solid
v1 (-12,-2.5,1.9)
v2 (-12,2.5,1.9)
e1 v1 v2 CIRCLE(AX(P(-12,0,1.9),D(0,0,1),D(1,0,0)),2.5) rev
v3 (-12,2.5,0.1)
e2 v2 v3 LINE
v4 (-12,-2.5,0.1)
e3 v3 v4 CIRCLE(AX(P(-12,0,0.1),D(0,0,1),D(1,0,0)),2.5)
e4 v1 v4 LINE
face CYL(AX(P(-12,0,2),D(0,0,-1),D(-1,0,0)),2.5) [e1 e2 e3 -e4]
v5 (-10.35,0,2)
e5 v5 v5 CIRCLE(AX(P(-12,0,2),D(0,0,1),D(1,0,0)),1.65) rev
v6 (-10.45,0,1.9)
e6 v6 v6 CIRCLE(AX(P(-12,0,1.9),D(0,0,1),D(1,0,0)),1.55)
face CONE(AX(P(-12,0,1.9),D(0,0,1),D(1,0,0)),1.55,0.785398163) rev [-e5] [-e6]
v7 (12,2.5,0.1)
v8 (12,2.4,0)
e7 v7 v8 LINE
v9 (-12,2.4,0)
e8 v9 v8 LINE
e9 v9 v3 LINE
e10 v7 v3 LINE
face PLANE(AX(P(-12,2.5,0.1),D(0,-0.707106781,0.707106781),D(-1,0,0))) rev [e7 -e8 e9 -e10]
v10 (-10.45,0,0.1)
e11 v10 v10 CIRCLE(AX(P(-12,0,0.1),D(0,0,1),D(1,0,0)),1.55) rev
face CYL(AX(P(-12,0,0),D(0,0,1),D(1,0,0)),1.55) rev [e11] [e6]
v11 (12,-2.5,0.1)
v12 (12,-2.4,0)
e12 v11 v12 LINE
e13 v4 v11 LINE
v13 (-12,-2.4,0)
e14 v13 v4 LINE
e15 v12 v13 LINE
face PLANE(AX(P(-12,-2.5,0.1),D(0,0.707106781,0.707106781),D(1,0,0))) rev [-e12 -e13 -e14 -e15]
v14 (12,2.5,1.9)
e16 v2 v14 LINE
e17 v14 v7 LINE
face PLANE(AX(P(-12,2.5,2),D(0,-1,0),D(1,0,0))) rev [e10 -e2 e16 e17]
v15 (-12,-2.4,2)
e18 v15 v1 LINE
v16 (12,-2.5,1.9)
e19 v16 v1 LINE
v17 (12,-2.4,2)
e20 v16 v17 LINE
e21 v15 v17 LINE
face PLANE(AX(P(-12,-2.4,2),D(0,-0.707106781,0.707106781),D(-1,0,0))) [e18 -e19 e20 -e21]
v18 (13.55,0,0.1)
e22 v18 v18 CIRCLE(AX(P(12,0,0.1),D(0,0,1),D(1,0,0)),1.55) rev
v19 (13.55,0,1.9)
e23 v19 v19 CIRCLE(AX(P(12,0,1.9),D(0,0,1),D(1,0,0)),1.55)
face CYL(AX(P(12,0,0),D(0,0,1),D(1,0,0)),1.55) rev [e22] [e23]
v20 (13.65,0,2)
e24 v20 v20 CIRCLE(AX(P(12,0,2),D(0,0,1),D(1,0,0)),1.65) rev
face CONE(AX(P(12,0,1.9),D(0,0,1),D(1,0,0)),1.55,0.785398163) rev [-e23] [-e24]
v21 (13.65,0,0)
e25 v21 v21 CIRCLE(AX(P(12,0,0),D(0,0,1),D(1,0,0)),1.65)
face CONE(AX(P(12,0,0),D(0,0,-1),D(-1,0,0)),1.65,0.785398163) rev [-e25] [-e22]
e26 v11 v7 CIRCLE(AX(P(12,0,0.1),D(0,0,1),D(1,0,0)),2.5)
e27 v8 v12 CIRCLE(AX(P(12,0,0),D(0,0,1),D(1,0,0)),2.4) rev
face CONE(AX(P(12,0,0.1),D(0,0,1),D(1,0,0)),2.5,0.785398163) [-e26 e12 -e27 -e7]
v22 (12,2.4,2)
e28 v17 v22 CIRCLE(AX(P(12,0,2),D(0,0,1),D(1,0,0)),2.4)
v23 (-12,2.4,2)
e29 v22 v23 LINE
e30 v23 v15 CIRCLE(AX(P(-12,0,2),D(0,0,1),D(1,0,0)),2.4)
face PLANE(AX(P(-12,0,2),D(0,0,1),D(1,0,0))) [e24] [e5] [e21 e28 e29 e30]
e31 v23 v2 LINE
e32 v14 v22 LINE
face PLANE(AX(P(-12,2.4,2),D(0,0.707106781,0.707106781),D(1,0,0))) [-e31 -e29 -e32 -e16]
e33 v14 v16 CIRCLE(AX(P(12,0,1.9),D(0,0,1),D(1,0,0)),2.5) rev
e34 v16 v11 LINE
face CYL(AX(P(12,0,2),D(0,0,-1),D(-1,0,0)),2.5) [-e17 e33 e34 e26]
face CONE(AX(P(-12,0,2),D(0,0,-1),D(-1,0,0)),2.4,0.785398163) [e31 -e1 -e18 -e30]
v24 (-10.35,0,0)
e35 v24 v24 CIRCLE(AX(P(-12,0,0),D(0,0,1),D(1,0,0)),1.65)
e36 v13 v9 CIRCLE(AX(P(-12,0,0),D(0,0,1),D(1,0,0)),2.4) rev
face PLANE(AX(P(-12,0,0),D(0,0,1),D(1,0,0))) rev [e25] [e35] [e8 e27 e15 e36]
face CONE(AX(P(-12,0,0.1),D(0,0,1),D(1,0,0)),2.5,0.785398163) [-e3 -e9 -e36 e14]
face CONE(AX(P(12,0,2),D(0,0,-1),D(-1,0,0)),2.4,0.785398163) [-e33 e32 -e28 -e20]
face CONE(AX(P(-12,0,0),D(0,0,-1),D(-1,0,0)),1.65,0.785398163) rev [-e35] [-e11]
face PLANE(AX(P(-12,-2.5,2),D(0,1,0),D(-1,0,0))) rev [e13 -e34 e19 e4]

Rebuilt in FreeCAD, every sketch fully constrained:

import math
import FreeCAD as App
import Part
import Sketcher


def edges_at(feature, points):
    """Names of the edges that pass closest to the given points."""
    edges = feature.Shape.Edges
    near = lambda p: min(range(len(edges)), key=lambda i: edges[i].distToShape(Part.Vertex(*p))[0])
    return sorted({f"Edge{near(p) + 1}" for p in points})

doc = App.newDocument("Part")
params = doc.addObject("Spreadsheet::Sheet", "Params")
for row, (alias, value) in enumerate([
    ("sketch1_radius", "2.5 mm"),
    ("sketch1_width", "24 mm"),
    ("pad1_length", "2 mm"),
    ("sketch2_diameter", "3.1 mm"),
    ("pocket1_length", "2 mm"),
    ("chamfer_size", "0.1 mm"),
], start=1):
    params.set(f"A{row}", alias)
    params.set(f"B{row}", "=" + value)
    params.setAlias(f"B{row}", alias)

body = doc.addObject("PartDesign::Body", "Body")

sketch1 = body.newObject("Sketcher::SketchObject", "Sketch")
sketch1.AttachmentSupport = (doc.getObject("XY_Plane"), [""])
sketch1.MapMode = "FlatFace"
sketch1.addGeometry([
    Part.LineSegment(App.Vector(12, 2.5, 0), App.Vector(-12, 2.5, 0)),
    Part.ArcOfCircle(Part.Circle(App.Vector(-12, 0, 0), App.Vector(0, 0, 1), 2.5), math.radians(90), math.radians(270)),
    Part.LineSegment(App.Vector(-12, -2.5, 0), App.Vector(12, -2.5, 0)),
    Part.ArcOfCircle(Part.Circle(App.Vector(12, 0, 0), App.Vector(0, 0, 1), 2.5), math.radians(-90), math.radians(90)),
], False)
sketch1.addConstraint([
    Sketcher.Constraint("Tangent", 0, 2, 1, 1),
    Sketcher.Constraint("Tangent", 1, 2, 2, 1),
    Sketcher.Constraint("Tangent", 2, 2, 3, 1),
    Sketcher.Constraint("Tangent", 3, 2, 0, 1),
    Sketcher.Constraint("Horizontal", 0),
    Sketcher.Constraint("Horizontal", 2),
    Sketcher.Constraint("Symmetric", 1, 3, 3, 3, -1, 1),
    Sketcher.Constraint("Radius", 1, 2.5),
    Sketcher.Constraint("DistanceX", 0, 2, 0, 1, 24.0),
])
sketch1.setExpression("Constraints[7]", "Params.sketch1_radius")
sketch1.setExpression("Constraints[8]", "Params.sketch1_width")
pad1 = body.newObject("PartDesign::Pad", "Pad")
pad1.Profile = sketch1
pad1.setExpression("Length", "Params.pad1_length")

sketch2 = body.newObject("Sketcher::SketchObject", "Sketch001")
sketch2.AttachmentSupport = (doc.getObject("XY_Plane"), [""])
sketch2.MapMode = "FlatFace"
sketch2.AttachmentOffset = App.Placement(App.Vector(0, 0, 2), App.Rotation())
sketch2.addGeometry([
    Part.Circle(App.Vector(-12, 0, 0), App.Vector(0, 0, 1), 1.6),
    Part.Circle(App.Vector(12, 0, 0), App.Vector(0, 0, 1), 1.6),
], False)
sketch2.addConstraint([
    Sketcher.Constraint("Equal", 0, 1),
    Sketcher.Constraint("Symmetric", 0, 3, 1, 3, -1, 1),
    Sketcher.Constraint("PointOnObject", 0, 3, -1),
    Sketcher.Constraint("Diameter", 0, 3.1),
    Sketcher.Constraint("DistanceX", 0, 3, -1, 1, 12.0),
])
sketch2.setExpression("Constraints[3]", "Params.sketch2_diameter")
pocket1 = body.newObject("PartDesign::Pocket", "Pocket")
pocket1.Profile = sketch2
pocket1.setExpression("Length", "Params.pocket1_length")
doc.recompute()

chamfer = body.newObject("PartDesign::Chamfer", "Chamfer")
chamfer.Base = (pocket1, edges_at(pocket1, [
    (14.5, 0, 2),
    (0, 2.5, 2),
    (-13.55, 0, 0),
    (-13.55, 0, 2),
    (10.45, 0, 0),
    (10.45, 0, 2),
    (-14.5, 0, 2),
    (0, 2.5, 0),
    (14.5, 0, 0),
    (0, -2.5, 0),
    (-14.5, 0, 0),
    (0, -2.5, 2),
]))
chamfer.setExpression("Size", "Params.chamfer_size")

doc.recompute()
